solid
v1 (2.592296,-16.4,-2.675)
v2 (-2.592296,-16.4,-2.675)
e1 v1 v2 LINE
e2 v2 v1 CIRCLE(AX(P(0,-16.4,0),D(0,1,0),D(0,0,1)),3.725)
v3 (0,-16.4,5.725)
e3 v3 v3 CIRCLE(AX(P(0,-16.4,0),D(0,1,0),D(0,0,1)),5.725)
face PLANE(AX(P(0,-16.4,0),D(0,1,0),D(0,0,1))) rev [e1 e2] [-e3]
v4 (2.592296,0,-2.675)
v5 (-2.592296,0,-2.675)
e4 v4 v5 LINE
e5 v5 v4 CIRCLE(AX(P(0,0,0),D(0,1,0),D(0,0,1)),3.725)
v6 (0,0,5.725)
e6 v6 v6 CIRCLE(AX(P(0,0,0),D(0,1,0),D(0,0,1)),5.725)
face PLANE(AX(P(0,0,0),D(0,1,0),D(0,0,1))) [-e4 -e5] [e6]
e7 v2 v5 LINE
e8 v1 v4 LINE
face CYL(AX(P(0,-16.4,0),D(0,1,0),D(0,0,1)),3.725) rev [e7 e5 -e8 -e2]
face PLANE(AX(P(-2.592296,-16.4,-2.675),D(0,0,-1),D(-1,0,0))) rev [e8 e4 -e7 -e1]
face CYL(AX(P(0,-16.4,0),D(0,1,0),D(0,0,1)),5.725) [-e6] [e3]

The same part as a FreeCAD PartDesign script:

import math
import FreeCAD as App
import Part
import Sketcher
from FreeCAD import Vector

doc = App.newDocument("Part")
body = doc.addObject("PartDesign::Body", "Body")

# Sketch on XZ plane
sketch1 = body.newObject("Sketcher::SketchObject", "Sketch")
sketch1.AttachmentSupport = (doc.getObject("XZ_Plane"), [""])
sketch1.MapMode = "FlatFace"
sketch1.addGeometry(Part.Circle(Vector(0, 0, 0), Vector(0, 0, 1), 6), False)
sketch1.addConstraint([
    Sketcher.Constraint("Coincident", 0, 3, -1, 1),
    Sketcher.Constraint("Diameter", 0, 11.45),
])
pad1 = body.newObject("PartDesign::Pad", "Pad")
pad1.Profile = sketch1
pad1.Length = 16.4

# Sketch on XZ plane
sketch2 = body.newObject("Sketcher::SketchObject", "Sketch001")
sketch2.AttachmentSupport = (doc.getObject("XZ_Plane"), [""])
sketch2.MapMode = "FlatFace"
sketch2.addGeometry([
    Part.LineSegment(Vector(2.6, -2.7, 0), Vector(-2.6, -2.7, 0)),
    Part.ArcOfCircle(Part.Circle(Vector(0, 0, 0), Vector(0, 0, 1), 3.7), math.radians(-46), math.radians(226)),
], False)
sketch2.addConstraint([
    Sketcher.Constraint("Coincident", 0, 1, 1, 1),
    Sketcher.Constraint("Coincident", 1, 2, 0, 2),
    Sketcher.Constraint("Horizontal", 0),
    Sketcher.Constraint("Coincident", 1, 3, -1, 1),
    Sketcher.Constraint("Radius", 1, 3.725),
    Sketcher.Constraint("DistanceY", 0, 1, -1, 1, 2.675),
])
pocket1 = body.newObject("PartDesign::Pocket", "Pocket")
pocket1.Profile = sketch2
pocket1.Type = "ThroughAll"
pocket1.Reversed = True

doc.recompute()
